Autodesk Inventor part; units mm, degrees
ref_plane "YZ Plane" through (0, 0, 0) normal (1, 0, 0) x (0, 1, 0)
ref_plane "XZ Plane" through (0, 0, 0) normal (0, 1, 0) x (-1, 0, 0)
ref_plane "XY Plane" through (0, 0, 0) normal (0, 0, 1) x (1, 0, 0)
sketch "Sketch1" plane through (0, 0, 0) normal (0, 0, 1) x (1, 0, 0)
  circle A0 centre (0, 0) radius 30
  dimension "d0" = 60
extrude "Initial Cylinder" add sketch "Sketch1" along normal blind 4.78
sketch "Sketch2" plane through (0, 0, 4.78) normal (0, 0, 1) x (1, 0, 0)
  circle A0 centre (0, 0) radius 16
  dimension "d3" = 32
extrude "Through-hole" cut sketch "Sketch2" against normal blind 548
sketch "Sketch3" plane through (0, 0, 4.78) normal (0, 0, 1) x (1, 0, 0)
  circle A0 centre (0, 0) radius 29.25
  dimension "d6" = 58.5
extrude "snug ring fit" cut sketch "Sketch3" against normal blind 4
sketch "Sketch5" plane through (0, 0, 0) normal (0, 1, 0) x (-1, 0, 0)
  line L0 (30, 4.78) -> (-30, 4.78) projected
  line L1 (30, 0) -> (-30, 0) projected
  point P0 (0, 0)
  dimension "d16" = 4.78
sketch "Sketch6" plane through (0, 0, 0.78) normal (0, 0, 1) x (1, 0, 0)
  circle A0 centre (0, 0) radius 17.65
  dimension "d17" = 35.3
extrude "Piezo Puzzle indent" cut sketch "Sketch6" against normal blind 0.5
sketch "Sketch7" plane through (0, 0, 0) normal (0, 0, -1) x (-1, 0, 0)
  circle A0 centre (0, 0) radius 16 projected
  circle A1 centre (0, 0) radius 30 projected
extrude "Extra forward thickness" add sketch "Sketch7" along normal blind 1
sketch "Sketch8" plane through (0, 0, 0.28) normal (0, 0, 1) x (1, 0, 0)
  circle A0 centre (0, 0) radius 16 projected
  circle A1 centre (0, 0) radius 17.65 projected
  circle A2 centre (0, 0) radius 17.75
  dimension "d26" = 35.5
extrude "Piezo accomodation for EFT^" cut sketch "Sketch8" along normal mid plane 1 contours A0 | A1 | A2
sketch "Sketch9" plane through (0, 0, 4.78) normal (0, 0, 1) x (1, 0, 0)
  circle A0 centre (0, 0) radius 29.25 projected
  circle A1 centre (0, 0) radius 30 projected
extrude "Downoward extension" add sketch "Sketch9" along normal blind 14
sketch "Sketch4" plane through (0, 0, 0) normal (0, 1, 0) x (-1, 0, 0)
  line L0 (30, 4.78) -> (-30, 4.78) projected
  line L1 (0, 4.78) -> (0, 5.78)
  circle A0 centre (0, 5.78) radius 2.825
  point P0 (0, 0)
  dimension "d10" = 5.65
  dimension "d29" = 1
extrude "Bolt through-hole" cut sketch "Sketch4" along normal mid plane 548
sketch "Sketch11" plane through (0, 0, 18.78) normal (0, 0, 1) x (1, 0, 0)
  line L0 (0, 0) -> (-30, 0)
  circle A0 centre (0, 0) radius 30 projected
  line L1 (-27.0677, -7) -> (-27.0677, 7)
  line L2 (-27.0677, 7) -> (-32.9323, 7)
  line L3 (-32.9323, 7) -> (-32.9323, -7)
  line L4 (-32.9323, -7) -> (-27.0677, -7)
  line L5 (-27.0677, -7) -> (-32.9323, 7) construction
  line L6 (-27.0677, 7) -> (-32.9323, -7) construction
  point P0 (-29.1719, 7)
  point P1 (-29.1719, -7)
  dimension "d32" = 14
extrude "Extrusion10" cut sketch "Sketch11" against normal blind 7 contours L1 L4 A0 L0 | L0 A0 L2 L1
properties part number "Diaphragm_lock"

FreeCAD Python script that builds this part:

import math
import FreeCAD as App
import Part
import Sketcher

V = App.Vector

doc = App.newDocument("Part")
params = doc.addObject("Spreadsheet::Sheet", "Params")
for row, (alias, value) in enumerate([
    ("sketch1_diameter", "60 mm"),
    ("pad1_length", "4.78 mm"),
    ("sketch2_diameter", "32 mm"),
    ("pocket1_length", "548 mm"),
    ("sketch3_diameter", "58.5 mm"),
    ("pocket2_length", "4 mm"),
    ("sketch4_diameter", "35.3 mm"),
    ("pocket3_length", "0.5 mm"),
    ("sketch5_diameter", "60 mm"),
    ("sketch5_diameter2", "32 mm"),
    ("pad2_length", "1 mm"),
    ("sketch6_diameter", "35.5 mm"),
    ("pocket4_length", "1 mm"),
    ("sketch7_diameter", "60 mm"),
    ("sketch7_diameter2", "58.5 mm"),
    ("pad3_length", "14 mm"),
    ("sketch8_diameter", "5.65 mm"),
    ("pocket5_length", "548 mm"),
    ("sketch9_height", "14 mm"),
    ("sketch9_radius", "30 mm"),
    ("pocket6_length", "7 mm"),
], start=1):
    params.set(f"A{row}", alias)
    params.set(f"B{row}", "=" + value)
    params.setAlias(f"B{row}", alias)

body = doc.addObject("PartDesign::Body", "Body")

# Sketch on XY plane
sketch1 = body.newObject("Sketcher::SketchObject", "Sketch")
sketch1.AttachmentSupport = (doc.getObject("XY_Plane"), [""])
sketch1.MapMode = "FlatFace"
sketch1.addGeometry(Part.Circle(V(0, 0, 0), V(0, 0, 1), 30), False)
sketch1.addConstraint(Sketcher.Constraint("Coincident", 0, 3, -1, 1))
sketch1.addConstraint(Sketcher.Constraint("Diameter", 0, 60.0))
sketch1.setExpression("Constraints[1]", "Params.sketch1_diameter")
pad1 = body.newObject("PartDesign::Pad", "Pad")
pad1.Profile = sketch1
pad1.setExpression("Length", "Params.pad1_length")

# Sketch on XY plane
sketch2 = body.newObject("Sketcher::SketchObject", "Sketch001")
sketch2.AttachmentSupport = (doc.getObject("XY_Plane"), [""])
sketch2.MapMode = "FlatFace"
sketch2.AttachmentOffset = App.Placement(V(0, 0, 4.78), App.Rotation())
sketch2.addGeometry(Part.Circle(V(0, 0, 0), V(0, 0, 1), 16), False)
sketch2.addConstraint(Sketcher.Constraint("Coincident", 0, 3, -1, 1))
sketch2.addConstraint(Sketcher.Constraint("Diameter", 0, 32.0))
sketch2.setExpression("Constraints[1]", "Params.sketch2_diameter")
pocket1 = body.newObject("PartDesign::Pocket", "Pocket")
pocket1.Profile = sketch2
pocket1.setExpression("Length", "Params.pocket1_length")

# Sketch on XY plane
sketch3 = body.newObject("Sketcher::SketchObject", "Sketch002")
sketch3.AttachmentSupport = (doc.getObject("XY_Plane"), [""])
sketch3.MapMode = "FlatFace"
sketch3.AttachmentOffset = App.Placement(V(0, 0, 4.78), App.Rotation())
sketch3.addGeometry(Part.Circle(V(0, 0, 0), V(0, 0, 1), 29.25), False)
sketch3.addConstraint(Sketcher.Constraint("Coincident", 0, 3, -1, 1))
sketch3.addConstraint(Sketcher.Constraint("Diameter", 0, 58.5))
sketch3.setExpression("Constraints[1]", "Params.sketch3_diameter")
pocket2 = body.newObject("PartDesign::Pocket", "Pocket001")
pocket2.Profile = sketch3
pocket2.setExpression("Length", "Params.pocket2_length")

# Sketch on XY plane
sketch4 = body.newObject("Sketcher::SketchObject", "Sketch003")
sketch4.AttachmentSupport = (doc.getObject("XY_Plane"), [""])
sketch4.MapMode = "FlatFace"
sketch4.AttachmentOffset = App.Placement(V(0, 0, 0.78), App.Rotation())
sketch4.addGeometry(Part.Circle(V(0, 0, 0), V(0, 0, 1), 17.65), False)
sketch4.addConstraint(Sketcher.Constraint("Coincident", 0, 3, -1, 1))
sketch4.addConstraint(Sketcher.Constraint("Diameter", 0, 35.3))
sketch4.setExpression("Constraints[1]", "Params.sketch4_diameter")
pocket3 = body.newObject("PartDesign::Pocket", "Pocket002")
pocket3.Profile = sketch4
pocket3.setExpression("Length", "Params.pocket3_length")

# Sketch on XY plane
sketch5 = body.newObject("Sketcher::SketchObject", "Sketch004")
sketch5.AttachmentSupport = (doc.getObject("XY_Plane"), [""])
sketch5.MapMode = "FlatFace"
sketch5.addGeometry(Part.Circle(V(0, 0, 0), V(0, 0, 1), 30), False)
sketch5.addGeometry(Part.Circle(V(0, 0, 0), V(0, 0, 1), 16), False)
sketch5.addConstraint(Sketcher.Constraint("Coincident", 0, 3, -1, 1))
sketch5.addConstraint(Sketcher.Constraint("Coincident", 1, 3, -1, 1))
sketch5.addConstraint(Sketcher.Constraint("Diameter", 0, 60.0))
sketch5.addConstraint(Sketcher.Constraint("Diameter", 1, 32.0))
sketch5.setExpression("Constraints[2]", "Params.sketch5_diameter")
sketch5.setExpression("Constraints[3]", "Params.sketch5_diameter2")
pad2 = body.newObject("PartDesign::Pad", "Pad001")
pad2.Profile = sketch5
pad2.setExpression("Length", "Params.pad2_length")
pad2.Reversed = True

# Sketch on XY plane
sketch6 = body.newObject("Sketcher::SketchObject", "Sketch005")
sketch6.AttachmentSupport = (doc.getObject("XY_Plane"), [""])
sketch6.MapMode = "FlatFace"
sketch6.AttachmentOffset = App.Placement(V(0, 0, 0.28), App.Rotation())
sketch6.addGeometry(Part.Circle(V(0, 0, 0), V(0, 0, 1), 17.75), False)
sketch6.addConstraint(Sketcher.Constraint("Coincident", 0, 3, -1, 1))
sketch6.addConstraint(Sketcher.Constraint("Diameter", 0, 35.5))
sketch6.setExpression("Constraints[1]", "Params.sketch6_diameter")
pocket4 = body.newObject("PartDesign::Pocket", "Pocket003")
pocket4.Profile = sketch6
pocket4.setExpression("Length", "Params.pocket4_length")
pocket4.Midplane = True

# Sketch on XY plane
sketch7 = body.newObject("Sketcher::SketchObject", "Sketch006")
sketch7.AttachmentSupport = (doc.getObject("XY_Plane"), [""])
sketch7.MapMode = "FlatFace"
sketch7.AttachmentOffset = App.Placement(V(0, 0, 4.78), App.Rotation())
sketch7.addGeometry(Part.Circle(V(0, 0, 0), V(0, 0, 1), 30), False)
sketch7.addGeometry(Part.Circle(V(0, 0, 0), V(0, 0, 1), 29.25), False)
sketch7.addConstraint(Sketcher.Constraint("Coincident", 0, 3, -1, 1))
sketch7.addConstraint(Sketcher.Constraint("Coincident", 1, 3, -1, 1))
sketch7.addConstraint(Sketcher.Constraint("Diameter", 0, 60.0))
sketch7.addConstraint(Sketcher.Constraint("Diameter", 1, 58.5))
sketch7.setExpression("Constraints[2]", "Params.sketch7_diameter")
sketch7.setExpression("Constraints[3]", "Params.sketch7_diameter2")
pad3 = body.newObject("PartDesign::Pad", "Pad002")
pad3.Profile = sketch7
pad3.setExpression("Length", "Params.pad3_length")

# Sketch on XZ plane
sketch8 = body.newObject("Sketcher::SketchObject", "Sketch007")
sketch8.AttachmentSupport = (doc.getObject("XZ_Plane"), [""])
sketch8.MapMode = "FlatFace"
sketch8.addGeometry(Part.Circle(V(0, 5.78, 0), V(0, 0, 1), 2.825), False)
sketch8.addConstraint(Sketcher.Constraint("PointOnObject", 0, 3, -2))
sketch8.addConstraint(Sketcher.Constraint("Diameter", 0, 5.65))
sketch8.addConstraint(Sketcher.Constraint("DistanceY", -1, 1, 0, 3, 5.78))
sketch8.setExpression("Constraints[1]", "Params.sketch8_diameter")
pocket5 = body.newObject("PartDesign::Pocket", "Pocket004")
pocket5.Profile = sketch8
pocket5.setExpression("Length", "Params.pocket5_length")
pocket5.Midplane = True

# Sketch on XY plane
sketch9 = body.newObject("Sketcher::SketchObject", "Sketch008")
sketch9.AttachmentSupport = (doc.getObject("XY_Plane"), [""])
sketch9.MapMode = "FlatFace"
sketch9.AttachmentOffset = App.Placement(V(0, 0, 18.78), App.Rotation())
sketch9.addGeometry(Part.LineSegment(V(-27.0677, -7, 0), V(-27.0677, 7, 0)), False)
sketch9.addGeometry(Part.LineSegment(V(-27.0677, 7, 0), V(-29.171904, 7, 0)), False)
sketch9.addGeometry(Part.ArcOfCircle(Part.Circle(V(0, 0, 0), V(0, 0, 1), 30), math.radians(166.506601), math.radians(193.493399)), False)
sketch9.addGeometry(Part.LineSegment(V(-29.171904, -7, 0), V(-27.0677, -7, 0)), False)
sketch9.addConstraint(Sketcher.Constraint("Coincident", 0, 2, 1, 1))
sketch9.addConstraint(Sketcher.Constraint("Coincident", 1, 2, 2, 1))
sketch9.addConstraint(Sketcher.Constraint("Coincident", 2, 2, 3, 1))
sketch9.addConstraint(Sketcher.Constraint("Coincident", 3, 2, 0, 1))
sketch9.addConstraint(Sketcher.Constraint("Vertical", 0))
sketch9.addConstraint(Sketcher.Constraint("Horizontal", 1))
sketch9.addConstraint(Sketcher.Constraint("Horizontal", 3))
sketch9.addConstraint(Sketcher.Constraint("Coincident", 2, 3, -1, 1))
sketch9.addConstraint(Sketcher.Constraint("Vertical", 1, 2, 2, 2))
sketch9.addConstraint(Sketcher.Constraint("DistanceY", 0, 1, 0, 2, 14.0))
sketch9.addConstraint(Sketcher.Constraint("Radius", 2, 30.0))
sketch9.addConstraint(Sketcher.Constraint("DistanceX", 1, 2, 1, 1, 2.1042))
sketch9.setExpression("Constraints[9]", "Params.sketch9_height")
sketch9.setExpression("Constraints[10]", "Params.sketch9_radius")
pocket6 = body.newObject("PartDesign::Pocket", "Pocket005")
pocket6.Profile = sketch9
pocket6.setExpression("Length", "Params.pocket6_length")

doc.recompute()
